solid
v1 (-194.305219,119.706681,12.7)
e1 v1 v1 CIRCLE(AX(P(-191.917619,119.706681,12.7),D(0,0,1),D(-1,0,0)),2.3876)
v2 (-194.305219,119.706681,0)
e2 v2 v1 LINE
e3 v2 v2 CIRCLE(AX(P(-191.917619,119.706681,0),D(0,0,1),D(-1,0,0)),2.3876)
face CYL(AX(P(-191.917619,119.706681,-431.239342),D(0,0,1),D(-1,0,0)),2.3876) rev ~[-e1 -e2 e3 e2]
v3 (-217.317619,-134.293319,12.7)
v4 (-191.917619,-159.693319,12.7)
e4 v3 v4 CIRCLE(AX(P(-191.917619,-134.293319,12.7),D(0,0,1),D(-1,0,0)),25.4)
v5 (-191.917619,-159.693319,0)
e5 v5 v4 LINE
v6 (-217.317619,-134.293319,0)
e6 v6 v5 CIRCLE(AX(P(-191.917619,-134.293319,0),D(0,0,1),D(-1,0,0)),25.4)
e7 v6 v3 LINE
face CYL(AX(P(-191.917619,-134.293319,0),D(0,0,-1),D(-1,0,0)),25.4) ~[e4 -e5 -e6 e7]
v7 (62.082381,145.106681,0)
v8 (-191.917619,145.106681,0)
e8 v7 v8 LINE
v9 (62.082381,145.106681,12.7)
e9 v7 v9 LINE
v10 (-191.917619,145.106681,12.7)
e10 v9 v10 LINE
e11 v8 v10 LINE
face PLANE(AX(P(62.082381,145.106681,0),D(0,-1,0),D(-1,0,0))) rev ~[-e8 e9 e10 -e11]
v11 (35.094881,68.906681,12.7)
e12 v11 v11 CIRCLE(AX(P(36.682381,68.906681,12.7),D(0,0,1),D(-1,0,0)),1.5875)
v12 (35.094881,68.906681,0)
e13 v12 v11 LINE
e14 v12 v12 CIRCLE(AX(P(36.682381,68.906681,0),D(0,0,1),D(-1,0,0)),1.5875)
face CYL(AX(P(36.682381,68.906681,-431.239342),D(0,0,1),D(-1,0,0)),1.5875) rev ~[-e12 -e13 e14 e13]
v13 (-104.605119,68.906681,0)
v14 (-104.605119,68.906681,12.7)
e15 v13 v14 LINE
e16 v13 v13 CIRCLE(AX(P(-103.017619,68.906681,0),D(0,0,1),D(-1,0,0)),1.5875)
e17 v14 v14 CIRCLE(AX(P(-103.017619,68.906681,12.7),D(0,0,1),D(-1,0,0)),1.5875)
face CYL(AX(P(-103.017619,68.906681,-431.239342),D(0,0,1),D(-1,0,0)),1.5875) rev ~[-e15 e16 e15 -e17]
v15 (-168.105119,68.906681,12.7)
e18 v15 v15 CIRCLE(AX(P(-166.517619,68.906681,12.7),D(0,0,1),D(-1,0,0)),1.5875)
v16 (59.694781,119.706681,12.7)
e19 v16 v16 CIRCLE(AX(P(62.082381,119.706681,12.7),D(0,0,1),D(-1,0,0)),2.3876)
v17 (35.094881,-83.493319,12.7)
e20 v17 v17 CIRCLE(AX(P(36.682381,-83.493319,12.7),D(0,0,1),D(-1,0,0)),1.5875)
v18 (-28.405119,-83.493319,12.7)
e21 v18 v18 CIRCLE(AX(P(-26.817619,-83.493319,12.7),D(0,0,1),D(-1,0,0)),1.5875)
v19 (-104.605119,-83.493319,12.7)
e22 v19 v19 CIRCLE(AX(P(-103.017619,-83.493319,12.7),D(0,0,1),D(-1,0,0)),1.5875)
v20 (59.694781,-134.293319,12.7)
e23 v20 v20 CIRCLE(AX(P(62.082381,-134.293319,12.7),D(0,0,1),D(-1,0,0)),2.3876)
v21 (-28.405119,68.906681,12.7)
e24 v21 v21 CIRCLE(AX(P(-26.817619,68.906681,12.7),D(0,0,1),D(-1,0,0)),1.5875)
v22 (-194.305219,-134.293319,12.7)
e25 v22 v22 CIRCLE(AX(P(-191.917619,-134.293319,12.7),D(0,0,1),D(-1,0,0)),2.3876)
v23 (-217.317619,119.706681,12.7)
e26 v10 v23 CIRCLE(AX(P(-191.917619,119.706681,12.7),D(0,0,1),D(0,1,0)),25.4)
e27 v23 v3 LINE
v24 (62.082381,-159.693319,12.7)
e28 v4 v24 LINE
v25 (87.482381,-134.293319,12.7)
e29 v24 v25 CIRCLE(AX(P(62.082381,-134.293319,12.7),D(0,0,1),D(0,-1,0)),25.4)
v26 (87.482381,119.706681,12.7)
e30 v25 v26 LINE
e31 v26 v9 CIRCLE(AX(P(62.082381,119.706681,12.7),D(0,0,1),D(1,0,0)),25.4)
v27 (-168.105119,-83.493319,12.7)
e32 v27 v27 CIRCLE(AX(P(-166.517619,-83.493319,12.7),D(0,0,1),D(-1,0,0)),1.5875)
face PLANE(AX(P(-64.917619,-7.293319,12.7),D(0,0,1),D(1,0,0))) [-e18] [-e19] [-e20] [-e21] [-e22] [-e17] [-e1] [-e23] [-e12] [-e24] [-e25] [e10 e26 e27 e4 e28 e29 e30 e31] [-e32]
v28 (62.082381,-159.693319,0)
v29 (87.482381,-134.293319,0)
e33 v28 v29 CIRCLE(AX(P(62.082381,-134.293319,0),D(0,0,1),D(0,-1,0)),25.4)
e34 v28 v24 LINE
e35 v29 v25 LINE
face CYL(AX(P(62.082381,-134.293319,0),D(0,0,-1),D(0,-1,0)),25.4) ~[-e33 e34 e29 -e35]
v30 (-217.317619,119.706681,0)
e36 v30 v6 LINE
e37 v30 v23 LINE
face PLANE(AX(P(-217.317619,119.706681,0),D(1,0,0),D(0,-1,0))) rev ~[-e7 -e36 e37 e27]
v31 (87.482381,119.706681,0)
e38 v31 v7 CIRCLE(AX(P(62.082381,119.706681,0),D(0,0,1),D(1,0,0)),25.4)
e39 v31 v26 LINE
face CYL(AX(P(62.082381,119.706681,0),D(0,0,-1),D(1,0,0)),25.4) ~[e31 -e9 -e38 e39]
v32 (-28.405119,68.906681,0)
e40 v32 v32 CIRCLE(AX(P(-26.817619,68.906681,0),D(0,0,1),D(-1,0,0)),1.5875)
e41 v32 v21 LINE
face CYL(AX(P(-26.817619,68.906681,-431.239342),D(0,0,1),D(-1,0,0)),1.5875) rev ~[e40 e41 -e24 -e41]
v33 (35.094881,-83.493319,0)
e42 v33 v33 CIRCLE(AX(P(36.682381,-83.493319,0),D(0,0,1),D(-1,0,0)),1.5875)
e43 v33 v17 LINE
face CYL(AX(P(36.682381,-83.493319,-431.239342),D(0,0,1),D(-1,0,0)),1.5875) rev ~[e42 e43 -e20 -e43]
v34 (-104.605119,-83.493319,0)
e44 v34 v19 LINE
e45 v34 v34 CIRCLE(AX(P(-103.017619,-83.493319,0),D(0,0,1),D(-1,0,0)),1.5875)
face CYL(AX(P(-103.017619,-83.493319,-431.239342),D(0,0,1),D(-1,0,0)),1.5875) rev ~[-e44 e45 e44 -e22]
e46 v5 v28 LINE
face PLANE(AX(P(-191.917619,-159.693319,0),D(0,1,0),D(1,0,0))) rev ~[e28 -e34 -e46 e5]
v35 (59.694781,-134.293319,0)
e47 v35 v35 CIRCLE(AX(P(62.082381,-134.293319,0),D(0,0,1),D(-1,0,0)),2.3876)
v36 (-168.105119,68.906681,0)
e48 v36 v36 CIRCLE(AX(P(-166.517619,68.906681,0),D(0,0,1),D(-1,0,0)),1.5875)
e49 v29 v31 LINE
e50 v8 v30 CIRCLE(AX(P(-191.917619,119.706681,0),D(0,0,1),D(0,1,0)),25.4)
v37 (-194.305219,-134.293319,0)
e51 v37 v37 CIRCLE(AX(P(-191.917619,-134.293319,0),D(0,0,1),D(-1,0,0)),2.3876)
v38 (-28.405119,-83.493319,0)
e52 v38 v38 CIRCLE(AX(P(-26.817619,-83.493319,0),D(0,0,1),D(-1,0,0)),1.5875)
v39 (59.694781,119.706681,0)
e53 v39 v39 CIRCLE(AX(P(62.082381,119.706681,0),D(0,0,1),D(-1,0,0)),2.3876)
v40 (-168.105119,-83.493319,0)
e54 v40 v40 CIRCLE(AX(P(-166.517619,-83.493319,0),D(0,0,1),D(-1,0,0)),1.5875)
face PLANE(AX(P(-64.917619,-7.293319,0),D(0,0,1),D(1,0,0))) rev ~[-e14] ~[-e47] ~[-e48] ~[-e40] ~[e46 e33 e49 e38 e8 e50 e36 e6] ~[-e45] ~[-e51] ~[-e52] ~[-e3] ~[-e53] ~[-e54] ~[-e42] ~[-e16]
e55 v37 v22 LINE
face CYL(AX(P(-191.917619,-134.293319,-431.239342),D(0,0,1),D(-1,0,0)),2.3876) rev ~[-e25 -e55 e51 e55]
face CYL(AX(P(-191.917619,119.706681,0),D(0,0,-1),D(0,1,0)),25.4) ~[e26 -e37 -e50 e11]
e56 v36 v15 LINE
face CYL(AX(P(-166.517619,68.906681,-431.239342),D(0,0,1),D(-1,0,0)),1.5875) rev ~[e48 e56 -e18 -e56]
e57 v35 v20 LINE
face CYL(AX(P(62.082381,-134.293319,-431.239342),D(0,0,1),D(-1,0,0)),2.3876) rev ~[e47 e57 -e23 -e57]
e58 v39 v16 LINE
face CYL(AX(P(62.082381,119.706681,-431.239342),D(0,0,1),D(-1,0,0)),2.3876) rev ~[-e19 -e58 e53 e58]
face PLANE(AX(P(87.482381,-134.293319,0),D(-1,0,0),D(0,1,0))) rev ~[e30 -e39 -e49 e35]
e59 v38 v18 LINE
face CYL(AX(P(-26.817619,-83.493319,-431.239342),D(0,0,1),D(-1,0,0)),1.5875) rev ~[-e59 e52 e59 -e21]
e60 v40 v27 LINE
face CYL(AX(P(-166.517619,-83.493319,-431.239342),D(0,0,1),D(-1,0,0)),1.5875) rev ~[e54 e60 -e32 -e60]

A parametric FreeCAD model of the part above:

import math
import FreeCAD as App
import Part
import Sketcher
Q = App.Units.Quantity

doc = App.newDocument("Part")
body = doc.addObject("PartDesign::Body", "Body")

sketch1 = doc.addObject("Sketcher::SketchObject", "Sketch")
body.addObject(sketch1)
sketch1.AttachmentSupport = (doc.XY_Plane, [""])
sketch1.MapMode = "FlatFace"
sketch1.addGeometry([
    Part.LineSegment(App.Vector(62, 145, 0), App.Vector(-192, 145, 0)),
    Part.ArcOfCircle(Part.Circle(App.Vector(-192, 120, 0), App.Vector(0, 0, 1), 25), math.radians(90), math.radians(180)),
    Part.LineSegment(App.Vector(-217, 120, 0), App.Vector(-217, -134, 0)),
    Part.ArcOfCircle(Part.Circle(App.Vector(-192, -134, 0), App.Vector(0, 0, 1), 25), math.radians(180), math.radians(270)),
    Part.LineSegment(App.Vector(-192, -160, 0), App.Vector(62, -160, 0)),
    Part.ArcOfCircle(Part.Circle(App.Vector(62, -134, 0), App.Vector(0, 0, 1), 25), math.radians(-90), math.radians(0)),
    Part.LineSegment(App.Vector(87, -134, 0), App.Vector(87, 120, 0)),
    Part.ArcOfCircle(Part.Circle(App.Vector(62, 120, 0), App.Vector(0, 0, 1), 25), math.radians(0), math.radians(90)),
], False)
sketch1.addConstraint([
    Sketcher.Constraint("Tangent", 0, 2, 1, 1),
    Sketcher.Constraint("Tangent", 1, 2, 2, 1),
    Sketcher.Constraint("Tangent", 2, 2, 3, 1),
    Sketcher.Constraint("Tangent", 3, 2, 4, 1),
    Sketcher.Constraint("Tangent", 4, 2, 5, 1),
    Sketcher.Constraint("Tangent", 5, 2, 6, 1),
    Sketcher.Constraint("Tangent", 6, 2, 7, 1),
    Sketcher.Constraint("Tangent", 7, 2, 0, 1),
    Sketcher.Constraint("Horizontal", 0),
    Sketcher.Constraint("Vertical", 2),
    Sketcher.Constraint("Horizontal", 4),
    Sketcher.Constraint("Vertical", 6),
    Sketcher.Constraint("Equal", 1, 3),
    Sketcher.Constraint("Equal", 3, 5),
    Sketcher.Constraint("Equal", 5, 7),
    Sketcher.Constraint("Equal", 4, 2),
    Sketcher.Constraint("Radius", 1, Q("1 in")),
    Sketcher.Constraint("DistanceX", 0, 2, 0, 1, Q("10 in")),
    Sketcher.Constraint("DistanceX", 1, 3, -1, 1, 191.917619),
    Sketcher.Constraint("DistanceY", -1, 1, 1, 3, 119.706681),
])
pad1 = doc.addObject("PartDesign::Pad", "Pad")
body.addObject(pad1)
pad1.Profile = sketch1
pad1.Length = Q("0.5 in")

sketch2 = doc.addObject("Sketcher::SketchObject", "Sketch001")
body.addObject(sketch2)
sketch2.AttachmentSupport = (doc.XY_Plane, [""])
sketch2.MapMode = "FlatFace"
sketch2.addGeometry([
    Part.Circle(App.Vector(-191.9, 119.7, 0), App.Vector(0, 0, 1), 2.4),
    Part.Circle(App.Vector(62.1, -134.3, 0), App.Vector(0, 0, 1), 2.4),
    Part.Circle(App.Vector(62.1, 119.7, 0), App.Vector(0, 0, 1), 2.4),
    Part.Circle(App.Vector(-191.9, -134.3, 0), App.Vector(0, 0, 1), 2.4),
], False)
sketch2.addConstraint([
    Sketcher.Constraint("Equal", 0, 1),
    Sketcher.Constraint("Equal", 1, 2),
    Sketcher.Constraint("Equal", 2, 3),
    Sketcher.Constraint("Horizontal", 0, 3, 2, 3),
    Sketcher.Constraint("Horizontal", 1, 3, 3, 3),
    Sketcher.Constraint("Vertical", 1, 3, 2, 3),
    Sketcher.Constraint("Vertical", 0, 3, 3, 3),
    Sketcher.Constraint("Diameter", 0, Q("0.188 in")),
    Sketcher.Constraint("DistanceX", 0, 3, 1, 3, Q("10 in")),
    Sketcher.Constraint("DistanceY", 1, 3, 0, 3, Q("10 in")),
    Sketcher.Constraint("DistanceX", 0, 3, -1, 1, 191.917619),
    Sketcher.Constraint("DistanceY", -1, 1, 0, 3, 119.706681),
])
doc.recompute()
hole = doc.addObject("PartDesign::Hole", "Hole")
body.addObject(hole)
hole.Profile = sketch2
hole.ThreadType = "None"
hole.Diameter = Q("0.188 in")
hole.DepthType = "ThroughAll"
hole.Reversed = True

sketch3 = doc.addObject("Sketcher::SketchObject", "Sketch002")
body.addObject(sketch3)
sketch3.AttachmentSupport = (doc.XY_Plane, [""])
sketch3.MapMode = "FlatFace"
sketch3.addGeometry([
    Part.Circle(App.Vector(-26.8, 68.9, 0), App.Vector(0, 0, 1), 1.6),
    Part.Circle(App.Vector(-103, 68.9, 0), App.Vector(0, 0, 1), 1.6),
    Part.Circle(App.Vector(-166.5, 68.9, 0), App.Vector(0, 0, 1), 1.6),
    Part.Circle(App.Vector(-166.5, -83.5, 0), App.Vector(0, 0, 1), 1.6),
    Part.Circle(App.Vector(-103, -83.5, 0), App.Vector(0, 0, 1), 1.6),
    Part.Circle(App.Vector(-26.8, -83.5, 0), App.Vector(0, 0, 1), 1.6),
    Part.Circle(App.Vector(36.7, -83.5, 0), App.Vector(0, 0, 1), 1.6),
    Part.Circle(App.Vector(36.7, 68.9, 0), App.Vector(0, 0, 1), 1.6),
], False)
sketch3.addConstraint([
    Sketcher.Constraint("Equal", 0, 1),
    Sketcher.Constraint("Equal", 1, 2),
    Sketcher.Constraint("Equal", 2, 3),
    Sketcher.Constraint("Equal", 3, 4),
    Sketcher.Constraint("Equal", 4, 5),
    Sketcher.Constraint("Equal", 5, 6),
    Sketcher.Constraint("Equal", 6, 7),
    Sketcher.Constraint("Horizontal", 0, 3, 1, 3),
    Sketcher.Constraint("Horizontal", 1, 3, 2, 3),
    Sketcher.Constraint("Horizontal", 3, 3, 4, 3),
    Sketcher.Constraint("Horizontal", 4, 3, 5, 3),
    Sketcher.Constraint("Horizontal", 5, 3, 6, 3),
    Sketcher.Constraint("Horizontal", 2, 3, 7, 3),
    Sketcher.Constraint("Vertical", 2, 3, 3, 3),
    Sketcher.Constraint("Vertical", 1, 3, 4, 3),
    Sketcher.Constraint("Vertical", 0, 3, 5, 3),
    Sketcher.Constraint("Vertical", 6, 3, 7, 3),
    Sketcher.Constraint("Diameter", 0, Q("0.125 in")),
    Sketcher.Constraint("DistanceX", 1, 3, 0, 3, Q("3 in")),
    Sketcher.Constraint("DistanceY", 3, 3, 2, 3, Q("6 in")),
    Sketcher.Constraint("DistanceX", 3, 3, 6, 3, Q("8 in")),
    Sketcher.Constraint("DistanceX", 2, 3, 1, 3, Q("2.5 in")),
    Sketcher.Constraint("DistanceX", 0, 3, -1, 1, 26.817619),
    Sketcher.Constraint("DistanceY", -1, 1, 0, 3, 68.906681),
])
doc.recompute()
hole2 = doc.addObject("PartDesign::Hole", "Hole001")
body.addObject(hole2)
hole2.Profile = sketch3
hole2.ThreadType = "None"
hole2.Diameter = Q("0.125 in")
hole2.DepthType = "ThroughAll"
hole2.Reversed = True

doc.recompute()
